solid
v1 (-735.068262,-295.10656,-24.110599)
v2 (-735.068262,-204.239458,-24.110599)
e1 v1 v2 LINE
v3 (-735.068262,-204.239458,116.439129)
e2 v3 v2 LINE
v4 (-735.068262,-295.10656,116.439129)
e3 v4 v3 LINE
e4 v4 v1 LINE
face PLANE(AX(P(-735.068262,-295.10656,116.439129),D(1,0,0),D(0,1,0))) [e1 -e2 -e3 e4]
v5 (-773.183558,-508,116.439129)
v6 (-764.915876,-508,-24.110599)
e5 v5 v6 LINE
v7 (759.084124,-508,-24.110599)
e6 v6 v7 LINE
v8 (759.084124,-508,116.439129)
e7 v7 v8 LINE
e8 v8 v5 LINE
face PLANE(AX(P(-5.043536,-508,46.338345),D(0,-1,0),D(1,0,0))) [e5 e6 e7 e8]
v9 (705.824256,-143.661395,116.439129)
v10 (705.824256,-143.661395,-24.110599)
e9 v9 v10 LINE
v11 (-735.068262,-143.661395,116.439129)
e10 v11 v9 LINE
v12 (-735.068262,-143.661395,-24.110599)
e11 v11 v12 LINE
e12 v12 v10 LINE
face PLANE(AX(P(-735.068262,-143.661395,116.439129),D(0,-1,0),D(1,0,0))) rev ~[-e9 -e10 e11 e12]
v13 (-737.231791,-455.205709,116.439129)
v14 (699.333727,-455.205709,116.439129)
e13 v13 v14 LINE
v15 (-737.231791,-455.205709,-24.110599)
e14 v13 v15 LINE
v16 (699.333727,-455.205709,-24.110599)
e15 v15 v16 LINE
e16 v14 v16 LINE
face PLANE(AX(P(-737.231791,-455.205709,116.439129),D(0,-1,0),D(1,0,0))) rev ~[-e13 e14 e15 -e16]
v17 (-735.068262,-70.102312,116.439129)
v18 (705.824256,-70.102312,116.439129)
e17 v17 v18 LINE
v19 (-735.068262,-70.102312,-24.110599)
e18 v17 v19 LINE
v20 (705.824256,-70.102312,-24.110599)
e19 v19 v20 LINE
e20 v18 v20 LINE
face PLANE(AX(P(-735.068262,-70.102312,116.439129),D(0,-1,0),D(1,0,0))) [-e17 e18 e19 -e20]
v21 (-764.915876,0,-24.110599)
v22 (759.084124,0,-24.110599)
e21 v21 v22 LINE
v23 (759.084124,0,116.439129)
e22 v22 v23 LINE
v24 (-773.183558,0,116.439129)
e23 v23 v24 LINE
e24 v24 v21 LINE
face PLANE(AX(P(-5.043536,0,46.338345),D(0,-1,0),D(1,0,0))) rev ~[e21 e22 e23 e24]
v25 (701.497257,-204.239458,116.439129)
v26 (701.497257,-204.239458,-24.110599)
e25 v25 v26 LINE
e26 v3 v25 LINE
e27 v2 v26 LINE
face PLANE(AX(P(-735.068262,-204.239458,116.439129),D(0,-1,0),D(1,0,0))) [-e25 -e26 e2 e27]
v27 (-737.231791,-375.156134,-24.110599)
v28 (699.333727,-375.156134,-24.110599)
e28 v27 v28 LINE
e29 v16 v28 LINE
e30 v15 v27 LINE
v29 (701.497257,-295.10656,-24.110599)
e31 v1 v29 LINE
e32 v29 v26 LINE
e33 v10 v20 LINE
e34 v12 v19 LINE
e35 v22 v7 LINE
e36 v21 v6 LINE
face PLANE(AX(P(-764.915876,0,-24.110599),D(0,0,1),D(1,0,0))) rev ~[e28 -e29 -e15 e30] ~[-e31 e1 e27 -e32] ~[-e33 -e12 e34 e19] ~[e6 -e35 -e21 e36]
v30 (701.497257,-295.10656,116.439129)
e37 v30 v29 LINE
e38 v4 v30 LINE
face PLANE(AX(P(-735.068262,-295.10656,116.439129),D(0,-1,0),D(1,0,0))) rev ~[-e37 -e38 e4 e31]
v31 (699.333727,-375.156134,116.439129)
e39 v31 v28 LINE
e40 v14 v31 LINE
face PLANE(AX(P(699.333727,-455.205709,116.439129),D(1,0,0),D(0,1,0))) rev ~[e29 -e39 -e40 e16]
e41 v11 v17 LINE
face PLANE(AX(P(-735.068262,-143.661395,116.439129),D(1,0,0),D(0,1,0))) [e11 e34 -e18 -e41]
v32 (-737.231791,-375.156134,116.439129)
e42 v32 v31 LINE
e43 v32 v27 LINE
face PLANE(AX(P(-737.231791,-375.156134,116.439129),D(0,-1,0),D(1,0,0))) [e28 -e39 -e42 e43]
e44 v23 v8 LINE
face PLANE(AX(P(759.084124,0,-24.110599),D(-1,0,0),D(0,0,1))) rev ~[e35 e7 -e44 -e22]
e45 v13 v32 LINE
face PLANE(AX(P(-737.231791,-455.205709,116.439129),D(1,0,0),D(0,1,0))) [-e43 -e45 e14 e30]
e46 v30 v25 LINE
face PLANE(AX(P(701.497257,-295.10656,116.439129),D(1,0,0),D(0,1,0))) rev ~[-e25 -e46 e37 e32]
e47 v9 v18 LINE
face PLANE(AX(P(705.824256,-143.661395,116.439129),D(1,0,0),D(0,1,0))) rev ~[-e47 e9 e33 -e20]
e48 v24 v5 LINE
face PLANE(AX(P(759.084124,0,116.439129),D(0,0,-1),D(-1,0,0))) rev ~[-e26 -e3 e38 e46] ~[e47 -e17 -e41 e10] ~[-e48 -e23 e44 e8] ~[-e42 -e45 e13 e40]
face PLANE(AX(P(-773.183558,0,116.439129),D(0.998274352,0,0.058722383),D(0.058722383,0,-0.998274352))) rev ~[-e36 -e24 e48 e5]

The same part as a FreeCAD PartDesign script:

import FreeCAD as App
import Part
import Sketcher
Q = App.Units.Quantity


def add_polygon(sketch, points):
    """Adds a closed chain of lines whose ends are joined by coincident constraints."""
    first, n = sketch.GeometryCount, len(points)
    for a, b in zip(points, points[1:] + points[:1]):
        sketch.addGeometry(Part.LineSegment(App.Vector(*a, 0), App.Vector(*b, 0)), False)
    for i in range(n):
        sketch.addConstraint(Sketcher.Constraint("Coincident", first + i, 2, first + (i + 1) % n, 1))

doc = App.newDocument("Part")
body = doc.addObject("PartDesign::Body", "Body")

# Sketch on XZ plane
sketch1 = doc.addObject("Sketcher::SketchObject", "Sketch")
body.addObject(sketch1)
sketch1.AttachmentSupport = (doc.XZ_Plane, [""])
sketch1.MapMode = "FlatFace"
add_polygon(sketch1, [(759, 116), (-773, 116), (-765, -24), (759, -24)])  # lines 0-3
sketch1.addConstraint([
    Sketcher.Constraint("Horizontal", 0),
    Sketcher.Constraint("Horizontal", 2),
    Sketcher.Constraint("Vertical", 3),
    Sketcher.Constraint("DistanceX", 2, 1, 2, 2, Q("60 in")),
    Sketcher.Constraint("DistanceX", 0, 2, 0, 1, Q("1532.267682 mm")),
    Sketcher.Constraint("DistanceY", 1, 2, -1, 1, Q("24.110599 mm")),
    Sketcher.Constraint("DistanceY", 3, 1, 3, 2, Q("140.549728 mm")),
    Sketcher.Constraint("DistanceX", 0, 2, -1, 1, Q("773.183558 mm")),
])
pad1 = doc.addObject("PartDesign::Pad", "Pad")
body.addObject(pad1)
pad1.Profile = sketch1
pad1.Length = Q("20 in")

# Sketch on XY plane
sketch2 = doc.addObject("Sketcher::SketchObject", "Sketch001")
body.addObject(sketch2)
sketch2.AttachmentSupport = (doc.XY_Plane, [""])
sketch2.MapMode = "FlatFace"
sketch2.AttachmentOffset = App.Placement(App.Vector(0, 0, 116.439129), App.Rotation())
add_polygon(sketch2, [(-737, -375), (-737, -455), (699, -455), (699, -375)])  # lines 0-3
add_polygon(sketch2, [(-735, -204), (-735, -295), (701, -295), (701, -204)])  # lines 4-7
add_polygon(sketch2, [(-735, -70), (-735, -144), (706, -144), (706, -70)])  # lines 8-11
sketch2.addConstraint([
    Sketcher.Constraint("Vertical", 0),
    Sketcher.Constraint("Horizontal", 1),
    Sketcher.Constraint("Vertical", 2),
    Sketcher.Constraint("Horizontal", 3),
    Sketcher.Constraint("Vertical", 4),
    Sketcher.Constraint("Horizontal", 5),
    Sketcher.Constraint("Vertical", 6),
    Sketcher.Constraint("Horizontal", 7),
    Sketcher.Constraint("Vertical", 8),
    Sketcher.Constraint("Horizontal", 9),
    Sketcher.Constraint("Vertical", 10),
    Sketcher.Constraint("Horizontal", 11),
    Sketcher.Constraint("Vertical", 7, 2, 8, 2),
    Sketcher.Constraint("Equal", 3, 5),
    Sketcher.Constraint("DistanceY", 4, 2, 4, 1, Q("90.867102 mm")),
    Sketcher.Constraint("DistanceX", 5, 1, 5, 2, Q("1436.565519 mm")),
    Sketcher.Constraint("DistanceX", 9, 1, 9, 2, Q("1440.892518 mm")),
    Sketcher.Constraint("DistanceY", 0, 2, 0, 1, Q("80.049575 mm")),
    Sketcher.Constraint("DistanceY", 8, 2, 8, 1, Q("73.559083 mm")),
    Sketcher.Constraint("DistanceX", 0, 2, -1, 1, Q("737.231791 mm")),
    Sketcher.Constraint("DistanceY", 0, 2, -1, 1, Q("455.205709 mm")),
    Sketcher.Constraint("DistanceY", 4, 2, -1, 1, Q("295.10656 mm")),
    Sketcher.Constraint("DistanceX", 8, 2, -1, 1, Q("735.068262 mm")),
    Sketcher.Constraint("DistanceY", 3, 2, 8, 2, Q("231.494738 mm")),
])
pocket1 = doc.addObject("PartDesign::Pocket", "Pocket")
body.addObject(pocket1)
pocket1.Profile = sketch2
pocket1.Length = Q("10 in")

doc.recompute()
